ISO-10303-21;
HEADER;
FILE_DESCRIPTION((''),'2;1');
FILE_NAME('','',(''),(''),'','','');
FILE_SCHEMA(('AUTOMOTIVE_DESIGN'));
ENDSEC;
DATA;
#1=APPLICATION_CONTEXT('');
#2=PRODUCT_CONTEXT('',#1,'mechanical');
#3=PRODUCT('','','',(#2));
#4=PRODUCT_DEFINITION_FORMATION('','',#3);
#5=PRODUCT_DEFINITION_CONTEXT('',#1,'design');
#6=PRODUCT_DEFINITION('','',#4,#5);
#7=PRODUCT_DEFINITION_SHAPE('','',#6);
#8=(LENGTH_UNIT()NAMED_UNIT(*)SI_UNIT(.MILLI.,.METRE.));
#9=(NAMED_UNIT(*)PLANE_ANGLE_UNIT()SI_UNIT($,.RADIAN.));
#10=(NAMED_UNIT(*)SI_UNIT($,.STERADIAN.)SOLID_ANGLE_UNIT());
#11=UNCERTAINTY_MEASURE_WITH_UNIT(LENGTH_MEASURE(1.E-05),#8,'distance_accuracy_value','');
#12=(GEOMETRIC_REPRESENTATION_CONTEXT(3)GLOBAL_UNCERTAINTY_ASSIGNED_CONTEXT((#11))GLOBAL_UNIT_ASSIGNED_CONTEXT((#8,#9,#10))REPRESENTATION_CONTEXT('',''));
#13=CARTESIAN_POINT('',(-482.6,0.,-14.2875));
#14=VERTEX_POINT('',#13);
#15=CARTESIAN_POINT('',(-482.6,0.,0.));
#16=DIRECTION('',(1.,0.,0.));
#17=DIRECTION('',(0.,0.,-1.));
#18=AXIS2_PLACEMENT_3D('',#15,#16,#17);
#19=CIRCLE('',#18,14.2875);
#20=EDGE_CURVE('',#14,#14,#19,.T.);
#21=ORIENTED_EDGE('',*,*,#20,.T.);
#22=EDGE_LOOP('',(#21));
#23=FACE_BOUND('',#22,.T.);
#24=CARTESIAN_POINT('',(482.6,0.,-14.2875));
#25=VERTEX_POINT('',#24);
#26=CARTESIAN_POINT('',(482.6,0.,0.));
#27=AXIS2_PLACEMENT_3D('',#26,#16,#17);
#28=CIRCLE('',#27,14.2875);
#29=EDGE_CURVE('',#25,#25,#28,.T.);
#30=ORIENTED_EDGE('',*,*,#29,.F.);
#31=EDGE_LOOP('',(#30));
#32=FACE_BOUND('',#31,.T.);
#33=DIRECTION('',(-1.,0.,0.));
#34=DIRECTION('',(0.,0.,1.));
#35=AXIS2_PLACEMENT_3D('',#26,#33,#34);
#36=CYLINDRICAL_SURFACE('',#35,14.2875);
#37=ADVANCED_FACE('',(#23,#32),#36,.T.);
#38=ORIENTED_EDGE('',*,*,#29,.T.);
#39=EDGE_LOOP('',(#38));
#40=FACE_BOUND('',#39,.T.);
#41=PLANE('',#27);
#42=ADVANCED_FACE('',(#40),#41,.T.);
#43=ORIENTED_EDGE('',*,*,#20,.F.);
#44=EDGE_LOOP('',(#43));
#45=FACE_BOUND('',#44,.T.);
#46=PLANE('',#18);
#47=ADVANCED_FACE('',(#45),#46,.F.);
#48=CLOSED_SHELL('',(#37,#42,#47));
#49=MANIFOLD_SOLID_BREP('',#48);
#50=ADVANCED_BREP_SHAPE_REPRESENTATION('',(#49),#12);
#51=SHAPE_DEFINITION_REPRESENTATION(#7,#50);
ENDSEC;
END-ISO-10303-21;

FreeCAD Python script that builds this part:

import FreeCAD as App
import Part
import Sketcher

V = App.Vector
Q = App.Units.Quantity

doc = App.newDocument("Part")
body = doc.addObject("PartDesign::Body", "Body")

sketch1 = doc.addObject("Sketcher::SketchObject", "Sketch")
body.addObject(sketch1)
sketch1.AttachmentSupport = (doc.YZ_Plane, [""])
sketch1.MapMode = "FlatFace"
sketch1.addGeometry(Part.Circle(V(0, 0, 0), V(0, 0, 1), 14), False)
sketch1.addConstraint([
    Sketcher.Constraint("Coincident", 0, 3, -1, 1),
    Sketcher.Constraint("Diameter", 0, Q("1.125 in")),
])
pad1 = doc.addObject("PartDesign::Pad", "Pad")
body.addObject(pad1)
pad1.Profile = sketch1
pad1.Length = Q("38 in")
pad1.Midplane = True

doc.recompute()
